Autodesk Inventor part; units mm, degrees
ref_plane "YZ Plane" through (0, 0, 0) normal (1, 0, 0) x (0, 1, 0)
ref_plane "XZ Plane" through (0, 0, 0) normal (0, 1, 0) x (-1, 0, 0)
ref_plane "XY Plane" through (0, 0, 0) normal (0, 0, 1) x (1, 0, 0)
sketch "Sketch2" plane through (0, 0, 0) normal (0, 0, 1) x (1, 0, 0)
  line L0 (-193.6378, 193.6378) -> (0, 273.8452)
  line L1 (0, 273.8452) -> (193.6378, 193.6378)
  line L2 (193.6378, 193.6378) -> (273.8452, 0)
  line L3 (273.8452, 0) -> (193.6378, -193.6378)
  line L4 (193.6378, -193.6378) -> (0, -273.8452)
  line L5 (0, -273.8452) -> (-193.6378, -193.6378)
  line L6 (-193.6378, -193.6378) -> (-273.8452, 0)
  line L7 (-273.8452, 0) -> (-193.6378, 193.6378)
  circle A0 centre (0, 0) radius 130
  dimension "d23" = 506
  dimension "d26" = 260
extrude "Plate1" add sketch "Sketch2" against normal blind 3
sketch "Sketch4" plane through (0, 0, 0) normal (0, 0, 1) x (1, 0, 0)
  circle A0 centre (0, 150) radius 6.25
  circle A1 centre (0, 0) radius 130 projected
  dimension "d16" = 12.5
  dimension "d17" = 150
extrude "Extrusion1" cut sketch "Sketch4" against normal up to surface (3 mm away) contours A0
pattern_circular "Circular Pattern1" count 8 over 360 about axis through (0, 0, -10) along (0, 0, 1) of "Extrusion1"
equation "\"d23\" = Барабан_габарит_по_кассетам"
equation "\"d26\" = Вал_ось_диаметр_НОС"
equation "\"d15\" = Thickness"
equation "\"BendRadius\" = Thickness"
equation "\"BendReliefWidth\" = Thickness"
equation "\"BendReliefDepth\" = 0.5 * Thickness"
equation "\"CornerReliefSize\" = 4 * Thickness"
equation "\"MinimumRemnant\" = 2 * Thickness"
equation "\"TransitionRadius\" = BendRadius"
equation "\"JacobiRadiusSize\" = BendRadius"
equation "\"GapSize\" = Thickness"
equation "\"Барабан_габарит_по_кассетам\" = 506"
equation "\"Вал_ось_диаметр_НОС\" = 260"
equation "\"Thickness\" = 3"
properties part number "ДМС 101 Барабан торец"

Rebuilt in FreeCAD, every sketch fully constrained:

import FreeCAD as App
import Part
import Sketcher
from FreeCAD import Vector
Q = App.Units.Quantity


def add_polygon(sketch, points):
    """Adds a closed chain of lines whose ends are joined by coincident constraints."""
    first, n = sketch.GeometryCount, len(points)
    for a, b in zip(points, points[1:] + points[:1]):
        sketch.addGeometry(Part.LineSegment(App.Vector(*a, 0), App.Vector(*b, 0)), False)
    for i in range(n):
        sketch.addConstraint(Sketcher.Constraint("Coincident", first + i, 2, first + (i + 1) % n, 1))

doc = App.newDocument("Part")
body = doc.addObject("PartDesign::Body", "Body")

sketch1 = body.newObject("Sketcher::SketchObject", "Sketch")
sketch1.AttachmentSupport = (doc.getObject("XY_Plane"), [""])
sketch1.MapMode = "FlatFace"
add_polygon(sketch1, [(0, 274), (-194, 194), (-274, 0), (-194, -194), (0, -274), (194, -194), (274, 0), (194, 194)])
sketch1.addGeometry(Part.Circle(Vector(0, 0, 0), Vector(0, 0, 1), 130), False)
sketch1.addConstraint(Sketcher.Constraint("Coincident", 8, 3, -1, 1))
sketch1.addConstraint(Sketcher.Constraint("Symmetric", 0, 2, 4, 2, -1, 1))
sketch1.addConstraint(Sketcher.Constraint("Symmetric", 1, 2, 5, 2, -1, 1))
sketch1.addConstraint(Sketcher.Constraint("Symmetric", 2, 2, 6, 2, -1, 1))
sketch1.addConstraint(Sketcher.Constraint("Symmetric", 3, 2, 7, 2, -1, 1))
sketch1.addConstraint(Sketcher.Constraint("Symmetric", 2, 2, 4, 2, -2))
sketch1.addConstraint(Sketcher.Constraint("PointOnObject", 1, 2, -1))
sketch1.addConstraint(Sketcher.Constraint("PointOnObject", 3, 2, -2))
sketch1.addConstraint(Sketcher.Constraint("Perpendicular", 0, 2))
sketch1.addConstraint(Sketcher.Constraint("Equal", 0, 1))
sketch1.addConstraint(Sketcher.Constraint("Diameter", 8, 260.0))
sketch1.addConstraint(Sketcher.Constraint("Angle", 0, Q("-157.5 deg")))
sketch1.addConstraint(Sketcher.Constraint("Distance", 0, 209.592))
pad1 = body.newObject("PartDesign::Pad", "Pad")
pad1.Profile = sketch1
pad1.Length = 3
pad1.Reversed = True

sketch2 = body.newObject("Sketcher::SketchObject", "Sketch001")
sketch2.AttachmentSupport = (doc.getObject("XY_Plane"), [""])
sketch2.MapMode = "FlatFace"
sketch2.addGeometry(Part.Circle(Vector(0, 150, 0), Vector(0, 0, 1), 6), False)
sketch2.addConstraint(Sketcher.Constraint("PointOnObject", 0, 3, -2))
sketch2.addConstraint(Sketcher.Constraint("Diameter", 0, 12.5))
sketch2.addConstraint(Sketcher.Constraint("DistanceY", -1, 1, 0, 3, 150.0))
pocket1 = body.newObject("PartDesign::Pocket", "Pocket")
pocket1.Profile = sketch2
pocket1.Length = 3
doc.recompute()

polarpattern = body.newObject("PartDesign::PolarPattern", "PolarPattern")
polarpattern.Originals = [pocket1]
polarpattern.Axis = (doc.getObject("Z_Axis"), [""])
polarpattern.Angle = 360
polarpattern.Occurrences = 8
body.Tip = polarpattern

doc.recompute()
